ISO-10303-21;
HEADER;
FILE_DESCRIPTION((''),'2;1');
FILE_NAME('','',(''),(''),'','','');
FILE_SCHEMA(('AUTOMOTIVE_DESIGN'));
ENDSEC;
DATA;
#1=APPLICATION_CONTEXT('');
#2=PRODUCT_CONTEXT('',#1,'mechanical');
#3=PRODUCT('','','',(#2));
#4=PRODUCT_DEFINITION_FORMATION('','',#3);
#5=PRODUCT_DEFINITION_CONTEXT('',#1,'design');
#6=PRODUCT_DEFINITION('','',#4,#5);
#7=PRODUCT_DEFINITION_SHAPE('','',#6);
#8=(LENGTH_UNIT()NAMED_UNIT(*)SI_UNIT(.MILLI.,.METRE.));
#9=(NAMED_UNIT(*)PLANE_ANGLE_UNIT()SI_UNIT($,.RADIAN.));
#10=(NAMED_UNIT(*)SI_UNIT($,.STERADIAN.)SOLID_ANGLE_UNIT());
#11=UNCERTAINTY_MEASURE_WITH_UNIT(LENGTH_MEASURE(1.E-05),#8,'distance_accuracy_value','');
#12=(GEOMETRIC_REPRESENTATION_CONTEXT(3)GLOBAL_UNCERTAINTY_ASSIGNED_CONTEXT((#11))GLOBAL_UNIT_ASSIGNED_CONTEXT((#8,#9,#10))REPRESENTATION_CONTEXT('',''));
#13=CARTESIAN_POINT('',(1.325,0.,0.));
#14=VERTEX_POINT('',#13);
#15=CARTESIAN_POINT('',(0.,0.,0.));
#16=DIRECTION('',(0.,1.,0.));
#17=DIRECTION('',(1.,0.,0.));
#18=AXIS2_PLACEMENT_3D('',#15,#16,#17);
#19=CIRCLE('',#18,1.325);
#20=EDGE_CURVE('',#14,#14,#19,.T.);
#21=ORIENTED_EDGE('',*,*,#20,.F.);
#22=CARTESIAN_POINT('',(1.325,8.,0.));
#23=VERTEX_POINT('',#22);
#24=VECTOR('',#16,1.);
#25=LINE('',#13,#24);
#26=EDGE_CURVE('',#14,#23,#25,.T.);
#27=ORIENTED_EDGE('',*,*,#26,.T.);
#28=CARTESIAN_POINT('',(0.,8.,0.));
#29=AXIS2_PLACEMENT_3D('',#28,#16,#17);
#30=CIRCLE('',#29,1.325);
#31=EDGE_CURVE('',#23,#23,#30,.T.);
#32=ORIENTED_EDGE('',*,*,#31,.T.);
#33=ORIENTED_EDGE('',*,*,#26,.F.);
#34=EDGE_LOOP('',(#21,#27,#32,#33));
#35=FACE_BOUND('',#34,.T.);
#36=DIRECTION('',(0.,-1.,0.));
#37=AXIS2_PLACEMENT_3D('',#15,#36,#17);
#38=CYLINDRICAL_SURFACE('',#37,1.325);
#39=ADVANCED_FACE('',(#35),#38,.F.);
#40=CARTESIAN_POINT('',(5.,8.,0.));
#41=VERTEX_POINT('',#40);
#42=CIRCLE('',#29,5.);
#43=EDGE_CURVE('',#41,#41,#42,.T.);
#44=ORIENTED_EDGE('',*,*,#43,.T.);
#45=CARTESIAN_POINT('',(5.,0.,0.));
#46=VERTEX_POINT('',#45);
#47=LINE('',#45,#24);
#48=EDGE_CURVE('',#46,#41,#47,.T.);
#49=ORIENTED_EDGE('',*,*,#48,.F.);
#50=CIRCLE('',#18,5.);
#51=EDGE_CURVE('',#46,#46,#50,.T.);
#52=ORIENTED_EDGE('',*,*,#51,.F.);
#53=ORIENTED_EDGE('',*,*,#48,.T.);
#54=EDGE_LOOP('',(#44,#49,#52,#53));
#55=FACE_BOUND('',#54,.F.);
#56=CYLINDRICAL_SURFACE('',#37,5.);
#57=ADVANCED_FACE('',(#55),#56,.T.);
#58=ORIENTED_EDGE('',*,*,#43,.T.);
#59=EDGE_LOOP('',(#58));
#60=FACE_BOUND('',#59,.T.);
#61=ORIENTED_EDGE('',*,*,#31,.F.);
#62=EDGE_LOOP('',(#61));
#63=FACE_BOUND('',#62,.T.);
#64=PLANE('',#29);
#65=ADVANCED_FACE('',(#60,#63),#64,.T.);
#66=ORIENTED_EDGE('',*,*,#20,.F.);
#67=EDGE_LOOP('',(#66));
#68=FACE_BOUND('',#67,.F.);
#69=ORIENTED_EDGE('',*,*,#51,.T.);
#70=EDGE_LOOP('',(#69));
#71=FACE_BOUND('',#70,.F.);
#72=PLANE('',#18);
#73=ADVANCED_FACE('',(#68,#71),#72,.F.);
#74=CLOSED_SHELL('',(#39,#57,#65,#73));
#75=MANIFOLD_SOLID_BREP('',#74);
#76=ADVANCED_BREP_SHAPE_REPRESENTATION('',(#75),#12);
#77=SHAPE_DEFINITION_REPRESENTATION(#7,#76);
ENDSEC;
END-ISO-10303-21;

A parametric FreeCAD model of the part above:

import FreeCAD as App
import Part
import Sketcher

doc = App.newDocument("Part")
body = doc.addObject("PartDesign::Body", "Body")

sketch1 = body.newObject("Sketcher::SketchObject", "Sketch")
sketch1.AttachmentSupport = (doc.getObject("XZ_Plane"), [""])
sketch1.MapMode = "FlatFace"
sketch1.addGeometry([
    Part.Circle(App.Vector(0, 0, 0), App.Vector(0, 0, 1), 5),
    Part.Circle(App.Vector(0, 0, 0), App.Vector(0, 0, 1), 1.325),
], False)
sketch1.addConstraint([
    Sketcher.Constraint("Coincident", 0, 3, -1, 1),
    Sketcher.Constraint("Coincident", 1, 3, -1, 1),
    Sketcher.Constraint("Diameter", 0, 10.0),
    Sketcher.Constraint("Diameter", 1, 2.65),
])
pad1 = body.newObject("PartDesign::Pad", "Pad")
pad1.Profile = sketch1
pad1.Length = 8
pad1.Reversed = True

doc.recompute()
